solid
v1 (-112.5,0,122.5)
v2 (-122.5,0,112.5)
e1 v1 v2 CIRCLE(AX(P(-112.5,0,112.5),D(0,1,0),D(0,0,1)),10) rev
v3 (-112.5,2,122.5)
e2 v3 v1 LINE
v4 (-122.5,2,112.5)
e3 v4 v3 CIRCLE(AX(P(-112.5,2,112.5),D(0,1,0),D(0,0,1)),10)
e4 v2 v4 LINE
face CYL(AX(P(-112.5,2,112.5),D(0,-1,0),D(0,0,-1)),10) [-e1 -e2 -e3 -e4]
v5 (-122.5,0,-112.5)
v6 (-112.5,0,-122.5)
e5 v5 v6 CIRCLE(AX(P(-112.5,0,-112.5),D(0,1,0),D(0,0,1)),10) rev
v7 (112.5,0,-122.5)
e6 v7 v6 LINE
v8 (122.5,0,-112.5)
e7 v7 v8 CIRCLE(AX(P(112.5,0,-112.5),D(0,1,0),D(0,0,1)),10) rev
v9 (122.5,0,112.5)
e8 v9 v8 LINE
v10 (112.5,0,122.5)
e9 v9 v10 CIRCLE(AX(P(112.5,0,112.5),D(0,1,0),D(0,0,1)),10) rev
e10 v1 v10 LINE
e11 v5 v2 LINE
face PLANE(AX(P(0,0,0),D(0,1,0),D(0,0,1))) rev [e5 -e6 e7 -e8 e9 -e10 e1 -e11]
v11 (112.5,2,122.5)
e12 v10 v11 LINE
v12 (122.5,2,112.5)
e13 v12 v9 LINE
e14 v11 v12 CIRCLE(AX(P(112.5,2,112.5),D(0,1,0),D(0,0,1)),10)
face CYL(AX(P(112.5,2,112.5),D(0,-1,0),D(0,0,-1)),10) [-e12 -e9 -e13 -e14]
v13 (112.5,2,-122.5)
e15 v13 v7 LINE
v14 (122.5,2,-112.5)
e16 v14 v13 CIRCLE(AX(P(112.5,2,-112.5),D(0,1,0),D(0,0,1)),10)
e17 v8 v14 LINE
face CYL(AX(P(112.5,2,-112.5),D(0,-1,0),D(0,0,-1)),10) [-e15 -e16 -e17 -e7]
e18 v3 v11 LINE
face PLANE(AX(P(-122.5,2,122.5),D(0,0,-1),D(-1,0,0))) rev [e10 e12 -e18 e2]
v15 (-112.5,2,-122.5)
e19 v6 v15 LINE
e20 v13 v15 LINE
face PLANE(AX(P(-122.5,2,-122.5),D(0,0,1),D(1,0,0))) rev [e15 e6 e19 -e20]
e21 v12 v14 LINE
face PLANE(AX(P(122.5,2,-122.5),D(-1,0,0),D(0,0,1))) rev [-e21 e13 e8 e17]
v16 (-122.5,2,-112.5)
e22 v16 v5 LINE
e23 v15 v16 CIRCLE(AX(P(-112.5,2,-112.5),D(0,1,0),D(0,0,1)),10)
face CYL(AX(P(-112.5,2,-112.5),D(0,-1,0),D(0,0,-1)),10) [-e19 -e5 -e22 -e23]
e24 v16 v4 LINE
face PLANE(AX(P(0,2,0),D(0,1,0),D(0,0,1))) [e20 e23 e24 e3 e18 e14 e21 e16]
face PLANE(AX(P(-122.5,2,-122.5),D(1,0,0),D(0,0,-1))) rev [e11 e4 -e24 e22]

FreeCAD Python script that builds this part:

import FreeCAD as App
import Part
import Sketcher

V = App.Vector
Q = App.Units.Quantity


def edges_at(feature, points):
    """Names of the edges that pass closest to the given points."""
    edges = feature.Shape.Edges
    near = lambda p: min(range(len(edges)), key=lambda i: edges[i].distToShape(Part.Vertex(*p))[0])
    return sorted({f"Edge{near(p) + 1}" for p in points})


def add_polygon(sketch, points):
    """Adds a closed chain of lines whose ends are joined by coincident constraints."""
    first, n = sketch.GeometryCount, len(points)
    for a, b in zip(points, points[1:] + points[:1]):
        sketch.addGeometry(Part.LineSegment(App.Vector(*a, 0), App.Vector(*b, 0)), False)
    for i in range(n):
        sketch.addConstraint(Sketcher.Constraint("Coincident", first + i, 2, first + (i + 1) % n, 1))

doc = App.newDocument("Part")
body = doc.addObject("PartDesign::Body", "Body")

# Sketch on XZ plane
sketch1 = body.newObject("Sketcher::SketchObject", "Sketch")
sketch1.AttachmentSupport = (doc.getObject("XZ_Plane"), [""])
sketch1.MapMode = "FlatFace"
add_polygon(sketch1, [(-122, -122), (-122, 122), (122, 122), (122, -122)])  # lines 0-3
sketch1.addConstraint([
    Sketcher.Constraint("Vertical", 0),
    Sketcher.Constraint("Horizontal", 1),
    Sketcher.Constraint("Vertical", 2),
    Sketcher.Constraint("Horizontal", 3),
    Sketcher.Constraint("Symmetric", 0, 2, 2, 2, -1, 1),
    Sketcher.Constraint("Equal", 3, 0),
    Sketcher.Constraint("DistanceX", 1, 1, 1, 2, Q("245 mm")),
])
pad1 = body.newObject("PartDesign::Pad", "Pad")
pad1.Profile = sketch1
pad1.Length = 2
pad1.Reversed = True
doc.recompute()

fillet = body.newObject("PartDesign::Fillet", "Fillet")
fillet.Base = (pad1, edges_at(pad1, [
    (122.5, 1, 122.5),
    (-122.5, 1, 122.5),
    (-122.5, 1, -122.5),
    (122.5, 1, -122.5),
]))
fillet.Radius = 10

doc.recompute()
